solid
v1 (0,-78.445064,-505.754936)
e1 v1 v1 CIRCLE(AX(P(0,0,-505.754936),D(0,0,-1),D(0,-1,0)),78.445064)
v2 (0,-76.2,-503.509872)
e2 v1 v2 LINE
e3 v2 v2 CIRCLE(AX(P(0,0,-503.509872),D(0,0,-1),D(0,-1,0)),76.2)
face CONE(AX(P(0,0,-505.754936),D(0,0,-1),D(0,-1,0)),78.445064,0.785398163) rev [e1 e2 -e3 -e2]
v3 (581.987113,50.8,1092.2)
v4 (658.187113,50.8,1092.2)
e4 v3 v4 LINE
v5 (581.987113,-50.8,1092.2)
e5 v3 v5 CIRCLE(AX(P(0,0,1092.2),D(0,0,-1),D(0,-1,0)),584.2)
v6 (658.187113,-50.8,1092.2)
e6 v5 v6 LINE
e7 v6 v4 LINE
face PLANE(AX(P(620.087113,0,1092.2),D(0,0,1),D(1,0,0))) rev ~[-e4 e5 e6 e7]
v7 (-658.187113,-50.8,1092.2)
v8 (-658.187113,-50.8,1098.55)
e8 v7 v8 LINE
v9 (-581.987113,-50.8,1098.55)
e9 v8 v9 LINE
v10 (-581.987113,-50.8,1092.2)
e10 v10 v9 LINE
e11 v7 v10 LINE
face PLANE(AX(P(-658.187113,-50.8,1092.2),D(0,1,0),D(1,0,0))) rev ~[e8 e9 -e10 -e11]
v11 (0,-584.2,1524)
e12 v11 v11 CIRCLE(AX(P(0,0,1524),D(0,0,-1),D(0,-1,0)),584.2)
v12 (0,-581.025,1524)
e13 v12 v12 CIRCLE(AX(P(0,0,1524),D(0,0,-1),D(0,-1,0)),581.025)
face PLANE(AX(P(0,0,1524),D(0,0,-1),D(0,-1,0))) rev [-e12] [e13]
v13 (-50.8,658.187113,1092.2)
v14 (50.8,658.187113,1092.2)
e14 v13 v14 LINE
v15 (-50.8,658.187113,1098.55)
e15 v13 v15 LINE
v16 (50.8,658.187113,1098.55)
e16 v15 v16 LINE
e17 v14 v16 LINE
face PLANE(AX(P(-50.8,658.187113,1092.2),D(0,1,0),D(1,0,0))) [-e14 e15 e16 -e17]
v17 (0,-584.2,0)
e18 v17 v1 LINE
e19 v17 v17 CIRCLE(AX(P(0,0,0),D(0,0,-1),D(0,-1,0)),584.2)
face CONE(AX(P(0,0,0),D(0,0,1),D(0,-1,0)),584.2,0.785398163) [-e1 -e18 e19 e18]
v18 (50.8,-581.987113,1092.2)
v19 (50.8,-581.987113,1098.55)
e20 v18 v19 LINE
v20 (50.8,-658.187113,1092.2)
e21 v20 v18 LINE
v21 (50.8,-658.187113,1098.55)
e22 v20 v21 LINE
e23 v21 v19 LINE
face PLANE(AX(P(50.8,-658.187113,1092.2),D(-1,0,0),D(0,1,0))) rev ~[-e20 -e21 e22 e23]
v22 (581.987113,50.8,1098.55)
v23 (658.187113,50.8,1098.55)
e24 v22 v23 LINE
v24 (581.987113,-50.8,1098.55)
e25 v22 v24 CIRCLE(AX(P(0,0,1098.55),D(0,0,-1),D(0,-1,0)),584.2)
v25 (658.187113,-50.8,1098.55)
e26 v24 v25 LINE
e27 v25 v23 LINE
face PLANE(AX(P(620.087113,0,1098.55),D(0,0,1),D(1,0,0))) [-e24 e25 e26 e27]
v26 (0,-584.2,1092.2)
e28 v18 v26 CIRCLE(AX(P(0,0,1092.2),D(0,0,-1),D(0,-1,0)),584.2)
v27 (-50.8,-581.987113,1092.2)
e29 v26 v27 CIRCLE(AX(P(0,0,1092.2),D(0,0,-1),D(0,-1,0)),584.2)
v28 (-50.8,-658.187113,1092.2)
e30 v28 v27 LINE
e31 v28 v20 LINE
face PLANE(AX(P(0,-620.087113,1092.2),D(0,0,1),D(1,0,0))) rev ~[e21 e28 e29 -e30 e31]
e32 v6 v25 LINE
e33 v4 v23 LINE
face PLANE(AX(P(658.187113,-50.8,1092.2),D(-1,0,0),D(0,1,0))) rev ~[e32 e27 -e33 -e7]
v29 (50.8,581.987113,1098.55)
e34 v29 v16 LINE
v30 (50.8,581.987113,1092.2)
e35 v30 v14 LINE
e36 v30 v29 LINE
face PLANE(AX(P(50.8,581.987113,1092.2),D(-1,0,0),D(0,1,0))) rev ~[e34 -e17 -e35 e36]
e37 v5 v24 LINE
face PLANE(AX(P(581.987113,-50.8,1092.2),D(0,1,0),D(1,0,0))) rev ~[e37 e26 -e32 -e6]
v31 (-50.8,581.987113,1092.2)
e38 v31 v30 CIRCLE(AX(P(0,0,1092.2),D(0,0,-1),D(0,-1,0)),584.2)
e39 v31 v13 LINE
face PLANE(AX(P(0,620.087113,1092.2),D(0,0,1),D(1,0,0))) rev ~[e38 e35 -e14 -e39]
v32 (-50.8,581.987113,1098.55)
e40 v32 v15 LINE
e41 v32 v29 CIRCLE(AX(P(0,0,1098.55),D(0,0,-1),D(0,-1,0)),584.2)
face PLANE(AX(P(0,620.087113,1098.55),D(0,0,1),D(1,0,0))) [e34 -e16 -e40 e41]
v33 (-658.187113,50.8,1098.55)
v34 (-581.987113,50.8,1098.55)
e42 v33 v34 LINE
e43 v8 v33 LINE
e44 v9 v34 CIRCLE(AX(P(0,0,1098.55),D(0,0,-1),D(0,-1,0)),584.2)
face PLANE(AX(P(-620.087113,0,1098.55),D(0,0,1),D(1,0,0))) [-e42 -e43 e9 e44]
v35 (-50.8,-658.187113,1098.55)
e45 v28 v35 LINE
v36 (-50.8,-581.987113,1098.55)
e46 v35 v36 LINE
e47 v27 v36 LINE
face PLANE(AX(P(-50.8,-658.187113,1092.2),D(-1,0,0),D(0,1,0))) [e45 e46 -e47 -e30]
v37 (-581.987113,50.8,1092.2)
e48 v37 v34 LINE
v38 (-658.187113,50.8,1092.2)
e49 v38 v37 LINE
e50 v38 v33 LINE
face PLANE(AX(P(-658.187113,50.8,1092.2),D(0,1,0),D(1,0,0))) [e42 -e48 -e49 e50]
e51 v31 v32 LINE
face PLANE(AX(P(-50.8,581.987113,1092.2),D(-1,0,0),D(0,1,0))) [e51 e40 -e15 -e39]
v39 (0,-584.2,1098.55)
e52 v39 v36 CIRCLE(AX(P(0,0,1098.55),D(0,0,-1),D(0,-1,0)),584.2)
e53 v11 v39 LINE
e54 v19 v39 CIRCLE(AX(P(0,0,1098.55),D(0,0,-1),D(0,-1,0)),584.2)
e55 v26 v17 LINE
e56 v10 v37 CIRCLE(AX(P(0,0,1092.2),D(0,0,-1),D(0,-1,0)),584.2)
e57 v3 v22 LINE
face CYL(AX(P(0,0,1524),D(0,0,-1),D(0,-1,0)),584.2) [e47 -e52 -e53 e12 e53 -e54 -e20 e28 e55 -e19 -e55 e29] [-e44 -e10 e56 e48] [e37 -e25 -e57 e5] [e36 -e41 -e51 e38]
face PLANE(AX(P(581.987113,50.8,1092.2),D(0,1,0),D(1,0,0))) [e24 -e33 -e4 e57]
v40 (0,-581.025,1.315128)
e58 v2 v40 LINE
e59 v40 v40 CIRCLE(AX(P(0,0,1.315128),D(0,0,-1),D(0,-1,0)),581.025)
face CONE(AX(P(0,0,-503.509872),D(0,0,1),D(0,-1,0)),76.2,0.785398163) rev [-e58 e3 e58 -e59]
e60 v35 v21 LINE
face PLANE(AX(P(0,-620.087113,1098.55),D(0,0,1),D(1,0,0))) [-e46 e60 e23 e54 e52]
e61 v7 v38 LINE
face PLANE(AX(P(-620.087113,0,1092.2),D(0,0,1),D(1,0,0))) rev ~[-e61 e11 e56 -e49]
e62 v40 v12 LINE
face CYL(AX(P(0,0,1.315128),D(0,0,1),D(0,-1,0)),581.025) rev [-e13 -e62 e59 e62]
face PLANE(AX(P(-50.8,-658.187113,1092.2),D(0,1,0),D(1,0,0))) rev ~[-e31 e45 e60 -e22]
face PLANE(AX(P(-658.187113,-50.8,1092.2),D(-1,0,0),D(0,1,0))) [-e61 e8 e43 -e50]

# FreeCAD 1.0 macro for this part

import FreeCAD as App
import Part
import Sketcher

V = App.Vector
Q = App.Units.Quantity


def add_polygon(sketch, points):
    """Adds a closed chain of lines whose ends are joined by coincident constraints."""
    first, n = sketch.GeometryCount, len(points)
    for a, b in zip(points, points[1:] + points[:1]):
        sketch.addGeometry(Part.LineSegment(App.Vector(*a, 0), App.Vector(*b, 0)), False)
    for i in range(n):
        sketch.addConstraint(Sketcher.Constraint("Coincident", first + i, 2, first + (i + 1) % n, 1))

doc = App.newDocument("Part")
body = doc.addObject("PartDesign::Body", "Body")

# Sketch on YZ plane
sketch1 = body.newObject("Sketcher::SketchObject", "Sketch")
sketch1.AttachmentSupport = (doc.getObject("YZ_Plane"), [""])
sketch1.MapMode = "FlatFace"
add_polygon(sketch1, [(-581, 1524), (-584.2, 1524), (-584.2, 0), (-78.4, -505.8), (-76.2, -503.5), (-581, 1.3)])  # lines 0-5
sketch1.addConstraint([
    Sketcher.Constraint("Horizontal", 0),
    Sketcher.Constraint("Vertical", 1),
    Sketcher.Constraint("Vertical", 5),
    Sketcher.Constraint("PointOnObject", 1, 2, -1),
    Sketcher.Constraint("Perpendicular", 2, 3),
    Sketcher.Constraint("Perpendicular", 3, 4),
    Sketcher.Constraint("DistanceY", 1, 2, 1, 1, Q("60 in")),
    Sketcher.Constraint("DistanceX", 0, 2, -1, 1, Q("23 in")),
    Sketcher.Constraint("DistanceX", 3, 2, -1, 1, Q("3 in")),
    Sketcher.Constraint("Angle", 2, Q("-45 deg")),
    Sketcher.Constraint("DistanceX", 0, 2, 0, 1, Q("0.125 in")),
    Sketcher.Constraint("Distance", 3, Q("0.125 in")),
])
revolution = body.newObject("PartDesign::Revolution", "Revolution")
revolution.Profile = sketch1
revolution.ReferenceAxis = (sketch1, ["V_Axis"])
revolution.Angle = 360

# Sketch on XY plane
sketch2 = body.newObject("Sketcher::SketchObject", "Sketch001")
sketch2.AttachmentSupport = (doc.getObject("XY_Plane"), [""])
sketch2.MapMode = "FlatFace"
sketch2.AttachmentOffset = App.Placement(V(0, 0, 43 * 25.4), App.Rotation())
add_polygon(sketch2, [(-51, 658), (-51, 582), (51, 582), (51, 658)])  # lines 0-3
add_polygon(sketch2, [(-658, 51), (-658, -51), (-582, -51), (-582, 51)])  # lines 4-7
add_polygon(sketch2, [(-51, -582), (-51, -658), (51, -658), (51, -582)])  # lines 8-11
add_polygon(sketch2, [(582, 51), (582, -51), (658, -51), (658, 51)])  # lines 12-15
sketch2.addConstraint([
    Sketcher.Constraint("Vertical", 0),
    Sketcher.Constraint("Horizontal", 1),
    Sketcher.Constraint("Vertical", 2),
    Sketcher.Constraint("Horizontal", 3),
    Sketcher.Constraint("Vertical", 4),
    Sketcher.Constraint("Horizontal", 5),
    Sketcher.Constraint("Vertical", 6),
    Sketcher.Constraint("Horizontal", 7),
    Sketcher.Constraint("Vertical", 8),
    Sketcher.Constraint("Horizontal", 9),
    Sketcher.Constraint("Vertical", 10),
    Sketcher.Constraint("Horizontal", 11),
    Sketcher.Constraint("Vertical", 12),
    Sketcher.Constraint("Horizontal", 13),
    Sketcher.Constraint("Vertical", 14),
    Sketcher.Constraint("Horizontal", 15),
    Sketcher.Constraint("Symmetric", 2, 2, 8, 2, -1, 1),
    Sketcher.Constraint("Symmetric", 0, 2, 10, 2, -1, 1),
    Sketcher.Constraint("Symmetric", 6, 2, 12, 2, -1, 1),
    Sketcher.Constraint("Symmetric", 4, 2, 14, 2, -1, 1),
    Sketcher.Constraint("Horizontal", 5, 2, 12, 2),
    Sketcher.Constraint("Vertical", 3, 2, 8, 2),
    Sketcher.Constraint("Equal", 15, 0),
    Sketcher.Constraint("Equal", 11, 4),
    Sketcher.Constraint("DistanceX", 1, 1, 1, 2, Q("4 in")),
    Sketcher.Constraint("DistanceX", 5, 1, 5, 2, Q("3 in")),
    Sketcher.Constraint("DistanceY", -1, 1, 0, 2, Q("581.987113 mm")),
    Sketcher.Constraint("DistanceX", 4, 2, -1, 1, Q("658.187113 mm")),
])
pad1 = body.newObject("PartDesign::Pad", "Pad")
pad1.Profile = sketch2
pad1.Length = Q("0.25 in")

doc.recompute()
